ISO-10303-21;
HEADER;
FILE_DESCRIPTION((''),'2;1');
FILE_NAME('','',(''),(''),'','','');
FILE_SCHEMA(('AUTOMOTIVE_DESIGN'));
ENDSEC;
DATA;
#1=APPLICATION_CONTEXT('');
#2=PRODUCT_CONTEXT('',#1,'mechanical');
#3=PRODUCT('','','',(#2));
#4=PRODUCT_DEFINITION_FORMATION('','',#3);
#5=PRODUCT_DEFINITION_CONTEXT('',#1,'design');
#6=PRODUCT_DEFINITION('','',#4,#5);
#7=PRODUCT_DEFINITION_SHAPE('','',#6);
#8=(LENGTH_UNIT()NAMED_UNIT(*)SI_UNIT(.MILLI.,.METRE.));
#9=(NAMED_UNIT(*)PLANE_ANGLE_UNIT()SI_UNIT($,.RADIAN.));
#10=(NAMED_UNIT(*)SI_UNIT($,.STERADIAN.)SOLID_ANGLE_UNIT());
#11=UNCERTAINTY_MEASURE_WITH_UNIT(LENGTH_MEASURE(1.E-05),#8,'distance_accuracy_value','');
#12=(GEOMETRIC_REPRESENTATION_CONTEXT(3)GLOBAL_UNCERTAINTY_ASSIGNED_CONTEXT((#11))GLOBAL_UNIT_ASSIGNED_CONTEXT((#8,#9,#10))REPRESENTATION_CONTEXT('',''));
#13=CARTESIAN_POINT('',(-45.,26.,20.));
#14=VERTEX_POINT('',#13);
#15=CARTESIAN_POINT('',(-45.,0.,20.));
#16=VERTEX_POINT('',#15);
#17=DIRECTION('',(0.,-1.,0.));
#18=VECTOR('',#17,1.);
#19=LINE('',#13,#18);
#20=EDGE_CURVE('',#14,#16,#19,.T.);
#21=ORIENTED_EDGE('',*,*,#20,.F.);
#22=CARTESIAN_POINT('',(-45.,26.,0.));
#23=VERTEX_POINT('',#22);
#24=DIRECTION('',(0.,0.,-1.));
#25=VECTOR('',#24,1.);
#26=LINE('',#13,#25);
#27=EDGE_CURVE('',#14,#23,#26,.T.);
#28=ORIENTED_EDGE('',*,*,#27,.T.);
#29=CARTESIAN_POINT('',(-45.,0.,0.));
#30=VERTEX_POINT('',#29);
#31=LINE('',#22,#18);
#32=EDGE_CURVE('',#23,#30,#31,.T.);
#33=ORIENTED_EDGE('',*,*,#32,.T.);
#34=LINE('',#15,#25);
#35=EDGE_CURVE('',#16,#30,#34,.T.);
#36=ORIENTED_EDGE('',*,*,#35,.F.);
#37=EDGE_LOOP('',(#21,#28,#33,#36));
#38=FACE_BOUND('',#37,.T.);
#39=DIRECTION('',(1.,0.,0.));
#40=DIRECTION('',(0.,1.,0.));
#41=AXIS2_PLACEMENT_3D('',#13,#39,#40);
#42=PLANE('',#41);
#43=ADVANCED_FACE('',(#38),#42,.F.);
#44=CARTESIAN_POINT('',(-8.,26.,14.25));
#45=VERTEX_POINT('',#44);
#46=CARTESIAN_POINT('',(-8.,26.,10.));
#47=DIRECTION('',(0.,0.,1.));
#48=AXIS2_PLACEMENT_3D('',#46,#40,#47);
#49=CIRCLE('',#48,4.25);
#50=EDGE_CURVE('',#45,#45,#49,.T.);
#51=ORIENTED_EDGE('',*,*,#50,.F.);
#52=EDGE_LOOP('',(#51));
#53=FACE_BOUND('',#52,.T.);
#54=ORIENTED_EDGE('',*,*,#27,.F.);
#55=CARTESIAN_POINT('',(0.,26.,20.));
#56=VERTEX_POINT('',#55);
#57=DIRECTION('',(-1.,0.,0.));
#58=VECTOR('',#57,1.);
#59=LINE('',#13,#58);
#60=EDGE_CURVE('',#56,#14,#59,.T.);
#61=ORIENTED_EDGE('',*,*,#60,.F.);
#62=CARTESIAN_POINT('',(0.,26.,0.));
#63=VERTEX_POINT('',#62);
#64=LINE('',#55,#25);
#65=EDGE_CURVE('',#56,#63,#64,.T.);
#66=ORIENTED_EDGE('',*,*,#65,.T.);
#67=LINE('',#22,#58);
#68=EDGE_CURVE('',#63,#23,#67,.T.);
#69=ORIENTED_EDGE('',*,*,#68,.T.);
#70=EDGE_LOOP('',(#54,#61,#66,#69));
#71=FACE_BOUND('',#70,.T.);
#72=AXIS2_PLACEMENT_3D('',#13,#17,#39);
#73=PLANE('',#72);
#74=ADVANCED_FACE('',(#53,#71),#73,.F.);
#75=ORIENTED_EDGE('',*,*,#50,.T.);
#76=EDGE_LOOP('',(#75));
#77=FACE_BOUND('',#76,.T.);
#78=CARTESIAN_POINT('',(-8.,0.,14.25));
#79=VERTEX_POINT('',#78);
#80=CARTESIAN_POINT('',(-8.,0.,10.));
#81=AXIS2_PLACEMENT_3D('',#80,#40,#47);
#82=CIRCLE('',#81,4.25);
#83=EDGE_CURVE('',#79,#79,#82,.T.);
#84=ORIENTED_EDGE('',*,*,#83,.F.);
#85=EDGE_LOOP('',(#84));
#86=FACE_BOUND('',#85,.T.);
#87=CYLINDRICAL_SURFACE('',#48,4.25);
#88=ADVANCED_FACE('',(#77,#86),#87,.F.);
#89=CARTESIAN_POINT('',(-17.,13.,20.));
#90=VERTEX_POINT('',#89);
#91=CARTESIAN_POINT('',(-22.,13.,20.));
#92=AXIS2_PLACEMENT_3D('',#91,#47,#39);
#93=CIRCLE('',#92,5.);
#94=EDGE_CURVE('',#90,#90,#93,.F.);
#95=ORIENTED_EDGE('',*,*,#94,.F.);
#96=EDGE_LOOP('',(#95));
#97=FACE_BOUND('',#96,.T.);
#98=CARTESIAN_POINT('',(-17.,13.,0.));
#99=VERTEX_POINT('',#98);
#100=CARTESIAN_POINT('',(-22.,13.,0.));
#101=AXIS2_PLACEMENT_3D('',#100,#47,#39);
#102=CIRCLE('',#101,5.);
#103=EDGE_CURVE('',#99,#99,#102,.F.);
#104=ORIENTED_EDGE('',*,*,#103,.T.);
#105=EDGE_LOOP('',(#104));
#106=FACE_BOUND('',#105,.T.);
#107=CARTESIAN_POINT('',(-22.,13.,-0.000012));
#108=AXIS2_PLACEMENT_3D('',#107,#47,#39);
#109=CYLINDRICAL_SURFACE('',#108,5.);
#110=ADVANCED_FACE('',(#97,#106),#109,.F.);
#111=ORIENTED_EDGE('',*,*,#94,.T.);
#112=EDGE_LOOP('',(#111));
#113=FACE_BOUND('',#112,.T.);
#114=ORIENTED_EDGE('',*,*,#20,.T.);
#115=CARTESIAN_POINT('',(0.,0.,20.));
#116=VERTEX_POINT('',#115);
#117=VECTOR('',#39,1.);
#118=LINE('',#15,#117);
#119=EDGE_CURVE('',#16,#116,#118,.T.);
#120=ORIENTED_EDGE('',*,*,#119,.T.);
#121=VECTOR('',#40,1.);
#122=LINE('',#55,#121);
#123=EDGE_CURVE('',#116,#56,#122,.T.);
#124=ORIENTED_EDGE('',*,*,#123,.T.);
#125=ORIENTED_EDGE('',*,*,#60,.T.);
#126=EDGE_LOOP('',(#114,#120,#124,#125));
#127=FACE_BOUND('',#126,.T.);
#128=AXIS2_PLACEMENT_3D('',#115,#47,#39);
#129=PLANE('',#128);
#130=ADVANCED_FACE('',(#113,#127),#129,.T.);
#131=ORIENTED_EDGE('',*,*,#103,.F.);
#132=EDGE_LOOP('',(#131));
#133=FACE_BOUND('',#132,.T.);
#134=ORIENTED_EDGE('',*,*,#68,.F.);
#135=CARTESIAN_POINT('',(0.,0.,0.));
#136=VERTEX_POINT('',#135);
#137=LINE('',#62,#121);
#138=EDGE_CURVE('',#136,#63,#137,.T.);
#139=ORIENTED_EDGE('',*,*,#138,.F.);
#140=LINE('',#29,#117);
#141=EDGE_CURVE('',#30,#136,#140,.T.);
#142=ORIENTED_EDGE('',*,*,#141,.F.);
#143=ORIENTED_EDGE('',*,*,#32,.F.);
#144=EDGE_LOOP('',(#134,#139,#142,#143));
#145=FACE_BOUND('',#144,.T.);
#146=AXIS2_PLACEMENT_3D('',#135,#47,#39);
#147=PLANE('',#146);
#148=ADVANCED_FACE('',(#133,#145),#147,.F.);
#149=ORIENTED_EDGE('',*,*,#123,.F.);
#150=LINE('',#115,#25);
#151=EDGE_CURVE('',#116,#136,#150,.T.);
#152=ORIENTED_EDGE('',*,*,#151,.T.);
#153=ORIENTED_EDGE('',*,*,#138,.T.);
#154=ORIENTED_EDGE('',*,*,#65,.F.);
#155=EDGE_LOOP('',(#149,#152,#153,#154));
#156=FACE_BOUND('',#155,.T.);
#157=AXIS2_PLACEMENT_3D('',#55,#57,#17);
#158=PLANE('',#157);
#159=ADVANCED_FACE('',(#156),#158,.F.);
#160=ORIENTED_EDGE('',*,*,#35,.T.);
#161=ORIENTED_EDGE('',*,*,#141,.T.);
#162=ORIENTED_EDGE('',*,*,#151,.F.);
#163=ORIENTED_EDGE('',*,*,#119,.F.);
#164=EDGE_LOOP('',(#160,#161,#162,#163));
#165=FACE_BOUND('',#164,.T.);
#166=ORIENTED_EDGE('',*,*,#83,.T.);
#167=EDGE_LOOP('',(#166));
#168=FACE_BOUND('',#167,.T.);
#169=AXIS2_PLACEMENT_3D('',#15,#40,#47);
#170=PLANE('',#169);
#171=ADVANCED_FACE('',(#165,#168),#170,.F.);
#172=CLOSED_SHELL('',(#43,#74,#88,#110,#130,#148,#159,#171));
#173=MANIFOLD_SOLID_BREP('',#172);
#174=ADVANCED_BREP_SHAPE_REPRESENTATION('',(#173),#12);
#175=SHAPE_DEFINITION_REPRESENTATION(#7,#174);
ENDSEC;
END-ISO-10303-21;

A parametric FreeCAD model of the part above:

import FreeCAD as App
import Part
import Sketcher
from FreeCAD import Vector

doc = App.newDocument("Part")
body = doc.addObject("PartDesign::Body", "Body")

sketch1 = body.newObject("Sketcher::SketchObject", "Sketch")
sketch1.AttachmentSupport = (doc.getObject("XY_Plane"), [""])
sketch1.MapMode = "FlatFace"
sketch1.addGeometry([
    Part.LineSegment(Vector(-45, 26, 0), Vector(-45, 0, 0)),
    Part.LineSegment(Vector(-45, 0, 0), Vector(0, 0, 0)),
    Part.LineSegment(Vector(0, 0, 0), Vector(0, 26, 0)),
    Part.LineSegment(Vector(0, 26, 0), Vector(-45, 26, 0)),
], False)
sketch1.addConstraint([
    Sketcher.Constraint("Coincident", 0, 2, 1, 1),
    Sketcher.Constraint("Coincident", 1, 2, 2, 1),
    Sketcher.Constraint("Coincident", 2, 2, 3, 1),
    Sketcher.Constraint("Coincident", 3, 2, 0, 1),
    Sketcher.Constraint("Vertical", 0),
    Sketcher.Constraint("Horizontal", 1),
    Sketcher.Constraint("Vertical", 2),
    Sketcher.Constraint("Horizontal", 3),
    Sketcher.Constraint("Coincident", 1, 2, -1, 1),
    Sketcher.Constraint("DistanceX", 1, 1, 1, 2, 45.0),
    Sketcher.Constraint("DistanceY", 0, 2, 0, 1, 26.0),
])
pad1 = body.newObject("PartDesign::Pad", "Pad")
pad1.Profile = sketch1
pad1.Length = 20

sketch2 = body.newObject("Sketcher::SketchObject", "Sketch001")
sketch2.AttachmentSupport = (doc.getObject("XY_Plane"), [""])
sketch2.MapMode = "FlatFace"
sketch2.addGeometry(Part.Circle(Vector(-22, 13, 0), Vector(0, 0, 1), 5), False)
sketch2.addConstraint([
    Sketcher.Constraint("Diameter", 0, 10.0),
    Sketcher.Constraint("DistanceX", 0, 3, -1, 1, 22.0),
    Sketcher.Constraint("DistanceY", -1, 1, 0, 3, 13.0),
])
pocket1 = body.newObject("PartDesign::Pocket", "Pocket")
pocket1.Profile = sketch2
pocket1.Type = "UpToFirst"
pocket1.Reversed = True

sketch3 = body.newObject("Sketcher::SketchObject", "Sketch002")
sketch3.AttachmentSupport = (doc.getObject("XY_Plane"), [""])
sketch3.MapMode = "FlatFace"
sketch3.addGeometry(Part.Circle(Vector(-22, 13, 0), Vector(0, 0, 1), 5), False)
sketch3.addConstraint([
    Sketcher.Constraint("Diameter", 0, 10.0),
    Sketcher.Constraint("DistanceX", 0, 3, -1, 1, 22.0),
    Sketcher.Constraint("DistanceY", -1, 1, 0, 3, 13.0),
])
pocket2 = body.newObject("PartDesign::Pocket", "Pocket001")
pocket2.Profile = sketch3
pocket2.Length = 1

sketch4 = body.newObject("Sketcher::SketchObject", "Sketch003")
sketch4.AttachmentSupport = (doc.getObject("XZ_Plane"), [""])
sketch4.MapMode = "FlatFace"
sketch4.AttachmentOffset = App.Placement(Vector(0, 0, -26), App.Rotation())
sketch4.addGeometry(Part.Circle(Vector(-8, 10, 0), Vector(0, 0, 1), 4.25), False)
sketch4.addConstraint([
    Sketcher.Constraint("Diameter", 0, 8.5),
    Sketcher.Constraint("DistanceX", 0, 3, -1, 1, 8.0),
    Sketcher.Constraint("DistanceY", -1, 1, 0, 3, 10.0),
])
doc.recompute()
hole = body.newObject("PartDesign::Hole", "Hole")
hole.Profile = sketch4
hole.ThreadType = "None"
hole.Diameter = 8.5
hole.DepthType = "Dimension"
hole.Depth = 26
hole.DrillPoint = "Flat"
hole.Reversed = True

doc.recompute()
